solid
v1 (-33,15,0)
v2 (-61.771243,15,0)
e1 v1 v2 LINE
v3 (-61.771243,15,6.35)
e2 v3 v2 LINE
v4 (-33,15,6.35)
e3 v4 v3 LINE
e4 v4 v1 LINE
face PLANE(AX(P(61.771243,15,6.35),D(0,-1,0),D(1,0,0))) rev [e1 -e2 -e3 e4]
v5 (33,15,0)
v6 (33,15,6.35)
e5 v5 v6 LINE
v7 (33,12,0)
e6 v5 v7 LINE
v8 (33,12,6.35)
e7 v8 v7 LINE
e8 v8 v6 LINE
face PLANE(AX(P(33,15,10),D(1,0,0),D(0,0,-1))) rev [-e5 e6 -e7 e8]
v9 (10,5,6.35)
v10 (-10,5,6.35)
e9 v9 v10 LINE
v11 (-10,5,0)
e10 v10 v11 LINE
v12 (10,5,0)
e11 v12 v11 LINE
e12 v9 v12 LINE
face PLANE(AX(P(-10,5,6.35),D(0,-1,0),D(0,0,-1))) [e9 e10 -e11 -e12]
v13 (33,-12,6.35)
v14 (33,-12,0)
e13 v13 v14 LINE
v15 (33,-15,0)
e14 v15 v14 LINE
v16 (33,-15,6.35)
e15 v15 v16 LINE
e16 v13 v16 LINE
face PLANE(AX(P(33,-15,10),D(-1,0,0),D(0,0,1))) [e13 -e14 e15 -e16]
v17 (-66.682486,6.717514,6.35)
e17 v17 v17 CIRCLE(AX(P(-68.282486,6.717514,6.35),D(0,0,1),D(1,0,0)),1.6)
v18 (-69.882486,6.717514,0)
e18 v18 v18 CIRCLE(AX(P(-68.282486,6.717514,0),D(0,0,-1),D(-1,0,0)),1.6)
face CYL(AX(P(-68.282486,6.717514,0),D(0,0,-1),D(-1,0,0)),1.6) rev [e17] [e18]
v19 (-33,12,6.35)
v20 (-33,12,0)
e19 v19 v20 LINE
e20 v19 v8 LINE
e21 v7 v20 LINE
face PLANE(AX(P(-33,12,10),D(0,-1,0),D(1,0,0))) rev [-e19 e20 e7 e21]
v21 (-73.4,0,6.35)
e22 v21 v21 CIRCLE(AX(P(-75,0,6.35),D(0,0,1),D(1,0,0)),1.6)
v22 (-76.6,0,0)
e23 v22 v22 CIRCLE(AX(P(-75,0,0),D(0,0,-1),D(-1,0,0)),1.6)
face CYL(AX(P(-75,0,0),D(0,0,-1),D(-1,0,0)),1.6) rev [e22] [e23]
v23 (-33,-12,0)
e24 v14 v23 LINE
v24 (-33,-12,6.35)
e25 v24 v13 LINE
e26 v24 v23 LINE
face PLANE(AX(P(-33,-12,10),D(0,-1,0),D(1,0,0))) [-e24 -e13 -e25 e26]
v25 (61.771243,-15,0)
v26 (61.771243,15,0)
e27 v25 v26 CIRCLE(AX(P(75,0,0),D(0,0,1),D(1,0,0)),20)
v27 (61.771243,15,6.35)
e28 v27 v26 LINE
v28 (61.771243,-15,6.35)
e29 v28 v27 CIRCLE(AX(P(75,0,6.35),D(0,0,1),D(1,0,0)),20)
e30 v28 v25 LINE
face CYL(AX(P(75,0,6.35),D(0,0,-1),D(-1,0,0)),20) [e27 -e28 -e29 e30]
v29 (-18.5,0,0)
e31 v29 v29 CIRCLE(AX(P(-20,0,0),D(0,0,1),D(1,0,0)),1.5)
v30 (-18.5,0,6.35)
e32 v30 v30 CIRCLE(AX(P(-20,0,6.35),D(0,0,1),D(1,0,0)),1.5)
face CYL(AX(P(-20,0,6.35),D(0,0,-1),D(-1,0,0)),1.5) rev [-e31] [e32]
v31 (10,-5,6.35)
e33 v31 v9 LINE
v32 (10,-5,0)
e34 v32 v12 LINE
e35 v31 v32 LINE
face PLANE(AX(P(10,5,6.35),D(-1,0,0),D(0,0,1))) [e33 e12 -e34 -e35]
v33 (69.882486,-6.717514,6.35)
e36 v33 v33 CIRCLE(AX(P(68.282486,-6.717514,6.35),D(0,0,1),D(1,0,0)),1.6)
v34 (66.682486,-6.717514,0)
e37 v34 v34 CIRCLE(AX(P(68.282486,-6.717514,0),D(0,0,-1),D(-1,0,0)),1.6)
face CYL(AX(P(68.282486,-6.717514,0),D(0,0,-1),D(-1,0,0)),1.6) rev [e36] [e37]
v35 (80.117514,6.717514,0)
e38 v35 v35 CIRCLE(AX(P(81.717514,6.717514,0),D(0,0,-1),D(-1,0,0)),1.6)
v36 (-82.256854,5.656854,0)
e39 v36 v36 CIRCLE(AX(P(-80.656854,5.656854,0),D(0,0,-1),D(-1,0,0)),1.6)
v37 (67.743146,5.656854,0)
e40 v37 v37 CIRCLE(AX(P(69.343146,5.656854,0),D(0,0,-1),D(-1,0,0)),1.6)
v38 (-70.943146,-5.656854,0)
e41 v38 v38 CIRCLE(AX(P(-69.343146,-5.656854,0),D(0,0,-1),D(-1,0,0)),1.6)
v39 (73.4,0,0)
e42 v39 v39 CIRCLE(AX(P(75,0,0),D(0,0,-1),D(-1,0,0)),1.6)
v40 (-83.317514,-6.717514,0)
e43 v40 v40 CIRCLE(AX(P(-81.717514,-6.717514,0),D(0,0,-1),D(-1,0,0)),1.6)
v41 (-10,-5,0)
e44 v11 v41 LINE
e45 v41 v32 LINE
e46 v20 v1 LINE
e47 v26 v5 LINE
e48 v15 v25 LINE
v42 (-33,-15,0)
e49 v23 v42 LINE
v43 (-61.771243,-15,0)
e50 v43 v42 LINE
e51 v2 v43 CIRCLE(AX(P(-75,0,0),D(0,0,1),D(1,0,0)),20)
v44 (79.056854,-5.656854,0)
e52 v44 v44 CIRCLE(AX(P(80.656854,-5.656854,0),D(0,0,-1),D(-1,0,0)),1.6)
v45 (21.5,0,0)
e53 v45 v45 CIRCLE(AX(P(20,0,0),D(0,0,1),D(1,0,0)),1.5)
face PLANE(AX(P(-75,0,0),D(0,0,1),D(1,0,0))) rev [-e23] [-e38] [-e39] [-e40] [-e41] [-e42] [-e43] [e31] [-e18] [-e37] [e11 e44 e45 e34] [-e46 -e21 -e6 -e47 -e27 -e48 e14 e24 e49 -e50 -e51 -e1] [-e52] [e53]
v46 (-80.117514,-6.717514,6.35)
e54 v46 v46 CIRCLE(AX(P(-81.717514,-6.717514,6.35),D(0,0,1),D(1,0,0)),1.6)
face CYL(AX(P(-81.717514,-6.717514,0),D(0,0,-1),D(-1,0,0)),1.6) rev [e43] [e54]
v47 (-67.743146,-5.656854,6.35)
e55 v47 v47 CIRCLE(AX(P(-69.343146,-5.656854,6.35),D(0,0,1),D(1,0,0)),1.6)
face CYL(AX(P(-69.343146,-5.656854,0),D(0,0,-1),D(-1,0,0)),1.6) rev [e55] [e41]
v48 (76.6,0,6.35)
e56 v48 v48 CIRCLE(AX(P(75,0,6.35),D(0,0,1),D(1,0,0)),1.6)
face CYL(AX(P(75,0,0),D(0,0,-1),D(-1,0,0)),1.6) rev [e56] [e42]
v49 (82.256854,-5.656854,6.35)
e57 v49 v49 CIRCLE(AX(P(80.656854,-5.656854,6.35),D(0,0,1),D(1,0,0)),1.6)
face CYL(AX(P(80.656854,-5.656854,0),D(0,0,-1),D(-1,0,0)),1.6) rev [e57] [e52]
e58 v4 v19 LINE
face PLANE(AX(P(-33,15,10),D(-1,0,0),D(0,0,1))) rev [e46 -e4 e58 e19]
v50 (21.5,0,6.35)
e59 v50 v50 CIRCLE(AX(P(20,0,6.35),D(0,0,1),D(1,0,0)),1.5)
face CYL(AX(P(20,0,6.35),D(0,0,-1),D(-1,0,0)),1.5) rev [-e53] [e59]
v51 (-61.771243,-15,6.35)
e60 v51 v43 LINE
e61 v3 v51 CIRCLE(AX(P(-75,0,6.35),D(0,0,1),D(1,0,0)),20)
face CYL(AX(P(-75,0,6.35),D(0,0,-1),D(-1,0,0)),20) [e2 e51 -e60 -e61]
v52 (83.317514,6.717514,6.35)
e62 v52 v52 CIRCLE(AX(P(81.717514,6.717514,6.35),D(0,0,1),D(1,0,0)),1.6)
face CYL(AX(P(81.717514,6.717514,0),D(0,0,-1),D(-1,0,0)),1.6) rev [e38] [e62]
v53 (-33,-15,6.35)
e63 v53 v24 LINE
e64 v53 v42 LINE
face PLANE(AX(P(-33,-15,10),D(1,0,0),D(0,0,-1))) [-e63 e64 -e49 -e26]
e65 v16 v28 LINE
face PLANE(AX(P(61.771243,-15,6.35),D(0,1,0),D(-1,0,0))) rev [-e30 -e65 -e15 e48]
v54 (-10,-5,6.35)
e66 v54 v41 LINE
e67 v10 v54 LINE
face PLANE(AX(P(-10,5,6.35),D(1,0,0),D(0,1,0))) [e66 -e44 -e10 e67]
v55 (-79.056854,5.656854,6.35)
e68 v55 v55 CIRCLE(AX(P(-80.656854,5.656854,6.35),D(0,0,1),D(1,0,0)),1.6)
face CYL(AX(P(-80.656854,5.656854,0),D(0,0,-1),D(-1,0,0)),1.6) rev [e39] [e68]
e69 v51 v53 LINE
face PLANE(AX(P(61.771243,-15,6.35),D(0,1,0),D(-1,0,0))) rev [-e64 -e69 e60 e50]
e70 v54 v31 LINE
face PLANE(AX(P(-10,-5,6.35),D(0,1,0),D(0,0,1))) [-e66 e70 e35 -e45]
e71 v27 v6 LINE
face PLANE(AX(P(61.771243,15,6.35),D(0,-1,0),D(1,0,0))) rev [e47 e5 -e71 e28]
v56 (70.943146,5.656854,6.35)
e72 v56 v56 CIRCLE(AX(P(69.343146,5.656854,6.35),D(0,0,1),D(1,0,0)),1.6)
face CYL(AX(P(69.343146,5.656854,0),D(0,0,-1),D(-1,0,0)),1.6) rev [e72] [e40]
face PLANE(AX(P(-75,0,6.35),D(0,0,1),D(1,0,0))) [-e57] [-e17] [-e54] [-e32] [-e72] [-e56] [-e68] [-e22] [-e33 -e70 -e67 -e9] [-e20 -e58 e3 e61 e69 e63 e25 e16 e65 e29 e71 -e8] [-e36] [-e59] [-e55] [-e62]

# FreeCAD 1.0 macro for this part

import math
import FreeCAD as App
import Part
import Sketcher
Q = App.Units.Quantity

doc = App.newDocument("Part")
params = doc.addObject("Spreadsheet::Sheet", "Params")
for row, (alias, value) in enumerate([
    ("sketch1_diameter", "3 mm"),
    ("sketch1_radius", "20 mm"),
    ("sketch1_width", "20 mm"),
    ("sketch1_height", "10 mm"),
    ("pad1_length", "6.35 mm"),
    ("sketch2_diameter", "3.2 mm"),
    ("hole_diameter", "3.2 mm"),
    ("hole_depth", "7.5 mm"),
    ("sketch3_width", "66 mm"),
    ("sketch3_height", "3 mm"),
    ("pocket1_length", "10 mm"),
], start=1):
    params.set(f"A{row}", alias)
    params.set(f"B{row}", "=" + value)
    params.setAlias(f"B{row}", alias)

body = doc.addObject("PartDesign::Body", "Body")

sketch1 = body.newObject("Sketcher::SketchObject", "Sketch")
sketch1.AttachmentSupport = (doc.getObject("XY_Plane"), [""])
sketch1.MapMode = "FlatFace"
sketch1.addGeometry([
    Part.LineSegment(App.Vector(-61.771243, -15, 0), App.Vector(61.771243, -15, 0)),
    Part.ArcOfCircle(Part.Circle(App.Vector(75, 0, 0), App.Vector(0, 0, 1), 20), math.radians(-131.409622), math.radians(131.409622)),
    Part.LineSegment(App.Vector(61.771243, 15, 0), App.Vector(-61.771243, 15, 0)),
    Part.ArcOfCircle(Part.Circle(App.Vector(-75, 0, 0), App.Vector(0, 0, 1), 20), math.radians(48.590378), math.radians(311.409622)),
    Part.Circle(App.Vector(20, 0, 0), App.Vector(0, 0, 1), 1.5),
    Part.LineSegment(App.Vector(-10, -5, 0), App.Vector(-10, 5, 0)),
    Part.LineSegment(App.Vector(-10, 5, 0), App.Vector(10, 5, 0)),
    Part.LineSegment(App.Vector(10, 5, 0), App.Vector(10, -5, 0)),
    Part.LineSegment(App.Vector(10, -5, 0), App.Vector(-10, -5, 0)),
    Part.Circle(App.Vector(-20, 0, 0), App.Vector(0, 0, 1), 1.5),
], False)
sketch1.addConstraint([
    Sketcher.Constraint("Coincident", 0, 2, 1, 1),
    Sketcher.Constraint("Coincident", 1, 2, 2, 1),
    Sketcher.Constraint("Coincident", 2, 2, 3, 1),
    Sketcher.Constraint("Coincident", 3, 2, 0, 1),
    Sketcher.Constraint("Coincident", 5, 2, 6, 1),
    Sketcher.Constraint("Coincident", 6, 2, 7, 1),
    Sketcher.Constraint("Coincident", 7, 2, 8, 1),
    Sketcher.Constraint("Coincident", 8, 2, 5, 1),
    Sketcher.Constraint("Horizontal", 0),
    Sketcher.Constraint("Horizontal", 2),
    Sketcher.Constraint("Vertical", 5),
    Sketcher.Constraint("Horizontal", 6),
    Sketcher.Constraint("Vertical", 7),
    Sketcher.Constraint("Horizontal", 8),
    Sketcher.Constraint("Equal", 1, 3),
    Sketcher.Constraint("Equal", 4, 9),
    Sketcher.Constraint("Symmetric", 1, 3, 3, 3, -1, 1),
    Sketcher.Constraint("Symmetric", 4, 3, 9, 3, -1, 1),
    Sketcher.Constraint("Symmetric", 5, 2, 7, 2, -1, 1),
    Sketcher.Constraint("Symmetric", 0, 2, 1, 2, -1),
    Sketcher.Constraint("PointOnObject", 4, 3, -1),
    Sketcher.Constraint("Diameter", 4, Q("3 mm")),
    Sketcher.Constraint("Radius", 1, Q("20 mm")),
    Sketcher.Constraint("DistanceX", 6, 1, 6, 2, Q("20 mm")),
    Sketcher.Constraint("DistanceY", 5, 1, 5, 2, Q("10 mm")),
    Sketcher.Constraint("DistanceX", -1, 1, 1, 3, Q("75 mm")),
    Sketcher.Constraint("DistanceX", -1, 1, 4, 3, Q("20 mm")),
    Sketcher.Constraint("DistanceY", 0, 2, -1, 1, Q("15 mm")),
])
sketch1.setExpression("Constraints[21]", "Params.sketch1_diameter")
sketch1.setExpression("Constraints[22]", "Params.sketch1_radius")
sketch1.setExpression("Constraints[23]", "Params.sketch1_width")
sketch1.setExpression("Constraints[24]", "Params.sketch1_height")
pad1 = body.newObject("PartDesign::Pad", "Pad")
pad1.Profile = sketch1
pad1.setExpression("Length", "Params.pad1_length")

sketch2 = body.newObject("Sketcher::SketchObject", "Sketch001")
sketch2.AttachmentSupport = (doc.getObject("XY_Plane"), [""])
sketch2.MapMode = "FlatFace"
sketch2.addGeometry([
    Part.Circle(App.Vector(-81.717514, -6.717514, 0), App.Vector(0, 0, 1), 1.6),
    Part.Circle(App.Vector(-75, 0, 0), App.Vector(0, 0, 1), 1.6),
    Part.Circle(App.Vector(0, 0, 0), App.Vector(0, 0, 1), 1.6),
    Part.Circle(App.Vector(75, 0, 0), App.Vector(0, 0, 1), 1.6),
    Part.Circle(App.Vector(69.343146, 5.656854, 0), App.Vector(0, 0, 1), 1.6),
    Part.Circle(App.Vector(80.656854, -5.656854, 0), App.Vector(0, 0, 1), 1.6),
    Part.Circle(App.Vector(81.717514, 6.717514, 0), App.Vector(0, 0, 1), 1.6),
    Part.Circle(App.Vector(68.282486, -6.717514, 0), App.Vector(0, 0, 1), 1.6),
    Part.Circle(App.Vector(-68.282486, 6.717514, 0), App.Vector(0, 0, 1), 1.6),
    Part.Circle(App.Vector(-80.656854, 5.656854, 0), App.Vector(0, 0, 1), 1.6),
    Part.Circle(App.Vector(-69.343146, -5.656854, 0), App.Vector(0, 0, 1), 1.6),
], False)
sketch2.addConstraint([
    Sketcher.Constraint("Coincident", 2, 3, -1, 1),
    Sketcher.Constraint("Equal", 0, 1),
    Sketcher.Constraint("Equal", 1, 2),
    Sketcher.Constraint("Equal", 2, 3),
    Sketcher.Constraint("Equal", 3, 4),
    Sketcher.Constraint("Equal", 4, 5),
    Sketcher.Constraint("Equal", 5, 6),
    Sketcher.Constraint("Equal", 6, 7),
    Sketcher.Constraint("Equal", 7, 8),
    Sketcher.Constraint("Equal", 8, 9),
    Sketcher.Constraint("Equal", 9, 10),
    Sketcher.Constraint("Symmetric", 1, 3, 3, 3, -1, 1),
    Sketcher.Constraint("Symmetric", 0, 3, 6, 3, -1, 1),
    Sketcher.Constraint("Symmetric", 7, 3, 8, 3, -1, 1),
    Sketcher.Constraint("Symmetric", 5, 3, 9, 3, -1, 1),
    Sketcher.Constraint("Symmetric", 4, 3, 10, 3, -1, 1),
    Sketcher.Constraint("PointOnObject", 1, 3, -1),
    Sketcher.Constraint("Horizontal", 0, 3, 7, 3),
    Sketcher.Constraint("Horizontal", 4, 3, 9, 3),
    Sketcher.Constraint("Diameter", 0, Q("3.2 mm")),
    Sketcher.Constraint("DistanceX", 1, 3, -1, 1, Q("75 mm")),
    Sketcher.Constraint("DistanceX", 0, 3, 4, 3, Q("151.06066 mm")),
    Sketcher.Constraint("DistanceY", 0, 3, 4, 3, Q("12.374369 mm")),
    Sketcher.Constraint("DistanceX", 4, 3, 5, 3, Q("11.313708 mm")),
    Sketcher.Constraint("DistanceY", 5, 3, 4, 3, Q("11.313708 mm")),
    Sketcher.Constraint("DistanceX", 5, 3, 6, 3, Q("1.06066 mm")),
    Sketcher.Constraint("DistanceX", 7, 3, 4, 3, Q("1.06066 mm")),
])
sketch2.setExpression("Constraints[19]", "Params.sketch2_diameter")
doc.recompute()
hole = body.newObject("PartDesign::Hole", "Hole")
hole.Profile = sketch2
hole.ThreadType = "None"
hole.setExpression("Diameter", "Params.hole_diameter")
hole.DepthType = "Dimension"
hole.setExpression("Depth", "Params.hole_depth")
hole.DrillPoint = "Angled"
hole.DrillPointAngle = 118
hole.Reversed = True

sketch3 = body.newObject("Sketcher::SketchObject", "Sketch002")
sketch3.AttachmentSupport = (doc.getObject("XY_Plane"), [""])
sketch3.MapMode = "FlatFace"
sketch3.addGeometry([
    Part.LineSegment(App.Vector(33, 15, 0), App.Vector(33, 12, 0)),
    Part.LineSegment(App.Vector(33, 12, 0), App.Vector(-33, 12, 0)),
    Part.LineSegment(App.Vector(-33, 12, 0), App.Vector(-33, 15, 0)),
    Part.LineSegment(App.Vector(-33, 15, 0), App.Vector(33, 15, 0)),
], False)
sketch3.addConstraint([
    Sketcher.Constraint("Coincident", 0, 2, 1, 1),
    Sketcher.Constraint("Coincident", 1, 2, 2, 1),
    Sketcher.Constraint("Coincident", 2, 2, 3, 1),
    Sketcher.Constraint("Coincident", 3, 2, 0, 1),
    Sketcher.Constraint("Vertical", 0),
    Sketcher.Constraint("Horizontal", 1),
    Sketcher.Constraint("Vertical", 2),
    Sketcher.Constraint("Horizontal", 3),
    Sketcher.Constraint("DistanceX", 1, 2, 1, 1, Q("66 mm")),
    Sketcher.Constraint("DistanceY", 0, 2, 0, 1, Q("3 mm")),
    Sketcher.Constraint("DistanceX", -1, 1, 0, 2, Q("33 mm")),
    Sketcher.Constraint("DistanceY", -1, 1, 0, 2, Q("12 mm")),
])
sketch3.setExpression("Constraints[8]", "Params.sketch3_width")
sketch3.setExpression("Constraints[9]", "Params.sketch3_height")
pocket1 = body.newObject("PartDesign::Pocket", "Pocket")
pocket1.Profile = sketch3
pocket1.setExpression("Length", "Params.pocket1_length")
pocket1.Reversed = True
doc.recompute()

mirrored = body.newObject("PartDesign::Mirrored", "Mirrored")
mirrored.Originals = [pocket1]
mirrored.MirrorPlane = (doc.getObject("XZ_Plane"), [""])
body.Tip = mirrored

doc.recompute()
